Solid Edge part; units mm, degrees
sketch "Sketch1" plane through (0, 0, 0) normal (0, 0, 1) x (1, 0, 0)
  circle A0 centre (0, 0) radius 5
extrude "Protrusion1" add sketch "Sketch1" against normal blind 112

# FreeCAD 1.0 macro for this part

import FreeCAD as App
import Part
import Sketcher

V = App.Vector

doc = App.newDocument("Part")
body = doc.addObject("PartDesign::Body", "Body")

# Sketch on XY plane
sketch1 = body.newObject("Sketcher::SketchObject", "Sketch")
sketch1.AttachmentSupport = (doc.getObject("XY_Plane"), [""])
sketch1.MapMode = "FlatFace"
sketch1.addGeometry(Part.Circle(V(0, 0, 0), V(0, 0, 1), 5), False)
sketch1.addConstraint(Sketcher.Constraint("Coincident", 0, 3, -1, 1))
sketch1.addConstraint(Sketcher.Constraint("Diameter", 0, 10.0))
pad1 = body.newObject("PartDesign::Pad", "Pad")
pad1.Profile = sketch1
pad1.Length = 112
pad1.Reversed = True

doc.recompute()
